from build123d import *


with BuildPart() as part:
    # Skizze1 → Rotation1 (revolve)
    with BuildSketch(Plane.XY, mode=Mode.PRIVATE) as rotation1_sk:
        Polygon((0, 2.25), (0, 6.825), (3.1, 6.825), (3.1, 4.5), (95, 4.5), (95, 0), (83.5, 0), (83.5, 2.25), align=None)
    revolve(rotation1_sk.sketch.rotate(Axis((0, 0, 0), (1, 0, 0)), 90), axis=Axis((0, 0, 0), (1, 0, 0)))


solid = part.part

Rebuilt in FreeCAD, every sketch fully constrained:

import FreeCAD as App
import Part
import Sketcher
from FreeCAD import Vector
Q = App.Units.Quantity

doc = App.newDocument("Part")
body = doc.addObject("PartDesign::Body", "Body")

# Sketch on XY plane
sketch1 = body.newObject("Sketcher::SketchObject", "Sketch")
sketch1.AttachmentSupport = (doc.getObject("XY_Plane"), [""])
sketch1.MapMode = "FlatFace"
sketch1.addGeometry([
    Part.LineSegment(Vector(0, 6.825, 0), Vector(0, 2.25, 0)),  # 0
    Part.LineSegment(Vector(0, 2.25, 0), Vector(83.5, 2.25, 0)),  # 1
    Part.LineSegment(Vector(83.5, 2.25, 0), Vector(83.5, 0, 0)),  # 2
    Part.LineSegment(Vector(83.5, 0, 0), Vector(95, 0, 0)),  # 3
    Part.LineSegment(Vector(95, 0, 0), Vector(95, 4.5, 0)),  # 4
    Part.LineSegment(Vector(95, 4.5, 0), Vector(3.1, 4.5, 0)),  # 5
    Part.LineSegment(Vector(3.1, 4.5, 0), Vector(3.1, 6.825, 0)),  # 6
    Part.LineSegment(Vector(3.1, 6.825, 0), Vector(0, 6.825, 0)),  # 7
], False)
sketch1.addConstraint([
    Sketcher.Constraint("Coincident", 0, 2, 1, 1),
    Sketcher.Constraint("Coincident", 1, 2, 2, 1),
    Sketcher.Constraint("Coincident", 2, 2, 3, 1),
    Sketcher.Constraint("Coincident", 3, 2, 4, 1),
    Sketcher.Constraint("Coincident", 4, 2, 5, 1),
    Sketcher.Constraint("Coincident", 5, 2, 6, 1),
    Sketcher.Constraint("Coincident", 6, 2, 7, 1),
    Sketcher.Constraint("Coincident", 7, 2, 0, 1),
    Sketcher.Constraint("Vertical", 0),
    Sketcher.Constraint("Horizontal", 1),
    Sketcher.Constraint("Vertical", 2),
    Sketcher.Constraint("Horizontal", 3),
    Sketcher.Constraint("Vertical", 4),
    Sketcher.Constraint("Horizontal", 5),
    Sketcher.Constraint("Vertical", 6),
    Sketcher.Constraint("Horizontal", 7),
    Sketcher.Constraint("PointOnObject", 0, 2, -2),
    Sketcher.Constraint("PointOnObject", 2, 2, -1),
    Sketcher.Constraint("DistanceX", 1, 1, 1, 2, Q("83.5 mm")),
    Sketcher.Constraint("DistanceX", 3, 1, 3, 2, Q("11.5 mm")),
    Sketcher.Constraint("DistanceX", 5, 2, 5, 1, Q("91.9 mm")),
    Sketcher.Constraint("DistanceY", 4, 1, 4, 2, Q("4.5 mm")),
    Sketcher.Constraint("DistanceY", 2, 2, 2, 1, Q("2.25 mm")),
    Sketcher.Constraint("DistanceY", 0, 2, 0, 1, Q("4.575 mm")),
])
revolution = body.newObject("PartDesign::Revolution", "Revolution")
revolution.Profile = sketch1
revolution.ReferenceAxis = (sketch1, ["H_Axis"])
revolution.Angle = 360

doc.recompute()
